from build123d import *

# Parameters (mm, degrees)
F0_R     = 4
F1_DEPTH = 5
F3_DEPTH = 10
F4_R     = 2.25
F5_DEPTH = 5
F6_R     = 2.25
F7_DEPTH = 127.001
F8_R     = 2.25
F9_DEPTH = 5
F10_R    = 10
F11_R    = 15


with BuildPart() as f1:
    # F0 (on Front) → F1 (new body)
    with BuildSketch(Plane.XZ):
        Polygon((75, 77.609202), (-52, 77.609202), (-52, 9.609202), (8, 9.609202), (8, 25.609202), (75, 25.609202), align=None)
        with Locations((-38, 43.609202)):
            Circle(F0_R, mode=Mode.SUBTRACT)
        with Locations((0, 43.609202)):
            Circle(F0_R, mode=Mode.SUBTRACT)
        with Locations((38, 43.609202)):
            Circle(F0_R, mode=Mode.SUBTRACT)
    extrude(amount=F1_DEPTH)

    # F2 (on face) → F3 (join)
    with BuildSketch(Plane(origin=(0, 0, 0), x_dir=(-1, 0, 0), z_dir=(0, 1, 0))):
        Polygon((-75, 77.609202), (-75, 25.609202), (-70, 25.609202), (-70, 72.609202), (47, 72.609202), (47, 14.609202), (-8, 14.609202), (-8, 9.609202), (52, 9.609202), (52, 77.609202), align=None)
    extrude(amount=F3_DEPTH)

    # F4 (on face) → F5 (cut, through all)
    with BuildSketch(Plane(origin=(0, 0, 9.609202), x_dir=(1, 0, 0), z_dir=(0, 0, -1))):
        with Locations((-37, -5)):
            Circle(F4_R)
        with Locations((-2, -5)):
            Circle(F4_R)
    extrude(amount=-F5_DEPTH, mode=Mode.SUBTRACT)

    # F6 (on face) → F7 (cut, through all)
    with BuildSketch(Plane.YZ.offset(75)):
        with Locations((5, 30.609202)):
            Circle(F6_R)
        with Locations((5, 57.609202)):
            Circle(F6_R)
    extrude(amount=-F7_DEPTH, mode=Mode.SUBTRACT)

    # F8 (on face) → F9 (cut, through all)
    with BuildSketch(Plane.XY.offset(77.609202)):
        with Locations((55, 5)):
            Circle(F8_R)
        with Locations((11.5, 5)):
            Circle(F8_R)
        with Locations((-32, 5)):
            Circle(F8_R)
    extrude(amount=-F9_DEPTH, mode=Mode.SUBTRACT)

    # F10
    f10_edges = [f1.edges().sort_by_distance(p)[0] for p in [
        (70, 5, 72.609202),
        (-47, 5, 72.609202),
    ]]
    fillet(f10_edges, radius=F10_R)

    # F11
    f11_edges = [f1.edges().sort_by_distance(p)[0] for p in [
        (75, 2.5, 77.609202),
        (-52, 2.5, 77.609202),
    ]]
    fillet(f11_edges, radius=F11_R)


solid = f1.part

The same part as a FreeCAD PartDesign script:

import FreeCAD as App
import Part
import Sketcher
Q = App.Units.Quantity


def edges_at(feature, points):
    """Names of the edges that pass closest to the given points."""
    edges = feature.Shape.Edges
    near = lambda p: min(range(len(edges)), key=lambda i: edges[i].distToShape(Part.Vertex(*p))[0])
    return sorted({f"Edge{near(p) + 1}" for p in points})

doc = App.newDocument("Part")
body = doc.addObject("PartDesign::Body", "Body")

# Sketch on XZ plane
sketch1 = doc.addObject("Sketcher::SketchObject", "Sketch")
body.addObject(sketch1)
sketch1.AttachmentSupport = (doc.XZ_Plane, [""])
sketch1.MapMode = "FlatFace"
sketch1.addGeometry(Part.LineSegment(App.Vector(75, 77.6, 0), App.Vector(-52, 77.6, 0)), False)
sketch1.addGeometry(Part.LineSegment(App.Vector(-52, 77.6, 0), App.Vector(-52, 9.6, 0)), False)
sketch1.addGeometry(Part.LineSegment(App.Vector(-52, 9.6, 0), App.Vector(8, 9.6, 0)), False)
sketch1.addGeometry(Part.LineSegment(App.Vector(8, 9.6, 0), App.Vector(8, 25.6, 0)), False)
sketch1.addGeometry(Part.LineSegment(App.Vector(8, 25.6, 0), App.Vector(75, 25.6, 0)), False)
sketch1.addGeometry(Part.LineSegment(App.Vector(75, 25.6, 0), App.Vector(75, 77.6, 0)), False)
sketch1.addGeometry(Part.Circle(App.Vector(-38, 43.6, 0), App.Vector(0, 0, 1), 4), False)
sketch1.addGeometry(Part.Circle(App.Vector(0, 43.6, 0), App.Vector(0, 0, 1), 4), False)
sketch1.addGeometry(Part.Circle(App.Vector(38, 43.6, 0), App.Vector(0, 0, 1), 4), False)
sketch1.addConstraint(Sketcher.Constraint("Coincident", 0, 2, 1, 1))
sketch1.addConstraint(Sketcher.Constraint("Coincident", 1, 2, 2, 1))
sketch1.addConstraint(Sketcher.Constraint("Coincident", 2, 2, 3, 1))
sketch1.addConstraint(Sketcher.Constraint("Coincident", 3, 2, 4, 1))
sketch1.addConstraint(Sketcher.Constraint("Coincident", 4, 2, 5, 1))
sketch1.addConstraint(Sketcher.Constraint("Coincident", 5, 2, 0, 1))
sketch1.addConstraint(Sketcher.Constraint("Horizontal", 0))
sketch1.addConstraint(Sketcher.Constraint("Vertical", 1))
sketch1.addConstraint(Sketcher.Constraint("Horizontal", 2))
sketch1.addConstraint(Sketcher.Constraint("Vertical", 3))
sketch1.addConstraint(Sketcher.Constraint("Horizontal", 4))
sketch1.addConstraint(Sketcher.Constraint("Vertical", 5))
sketch1.addConstraint(Sketcher.Constraint("Equal", 6, 7))
sketch1.addConstraint(Sketcher.Constraint("Equal", 7, 8))
sketch1.addConstraint(Sketcher.Constraint("Symmetric", 6, 3, 8, 3, -2))
sketch1.addConstraint(Sketcher.Constraint("PointOnObject", 7, 3, -2))
sketch1.addConstraint(Sketcher.Constraint("Horizontal", 6, 3, 7, 3))
sketch1.addConstraint(Sketcher.Constraint("Diameter", 6, Q("8 mm")))
sketch1.addConstraint(Sketcher.Constraint("DistanceX", 0, 2, 0, 1, Q("127 mm")))
sketch1.addConstraint(Sketcher.Constraint("DistanceX", 2, 1, 2, 2, Q("60 mm")))
sketch1.addConstraint(Sketcher.Constraint("DistanceY", 1, 2, 1, 1, Q("68 mm")))
sketch1.addConstraint(Sketcher.Constraint("DistanceY", 3, 1, 3, 2, Q("16 mm")))
sketch1.addConstraint(Sketcher.Constraint("DistanceX", 6, 3, -1, 1, Q("38 mm")))
sketch1.addConstraint(Sketcher.Constraint("DistanceX", 0, 2, -1, 1, Q("52 mm")))
sketch1.addConstraint(Sketcher.Constraint("DistanceY", 6, 3, 0, 2, Q("34 mm")))
sketch1.addConstraint(Sketcher.Constraint("DistanceY", -1, 1, 0, 2, Q("77.609202 mm")))
pad1 = doc.addObject("PartDesign::Pad", "Pad")
body.addObject(pad1)
pad1.Profile = sketch1
pad1.Length = 5

# Sketch on XZ plane
sketch2 = doc.addObject("Sketcher::SketchObject", "Sketch001")
body.addObject(sketch2)
sketch2.AttachmentSupport = (doc.XZ_Plane, [""])
sketch2.MapMode = "FlatFace"
sketch2.addGeometry(Part.LineSegment(App.Vector(75, 78, 0), App.Vector(75, 26, 0)), False)
sketch2.addGeometry(Part.LineSegment(App.Vector(75, 26, 0), App.Vector(70, 26, 0)), False)
sketch2.addGeometry(Part.LineSegment(App.Vector(70, 26, 0), App.Vector(70, 73, 0)), False)
sketch2.addGeometry(Part.LineSegment(App.Vector(70, 73, 0), App.Vector(-47, 73, 0)), False)
sketch2.addGeometry(Part.LineSegment(App.Vector(-47, 73, 0), App.Vector(-47, 15, 0)), False)
sketch2.addGeometry(Part.LineSegment(App.Vector(-47, 15, 0), App.Vector(8, 15, 0)), False)
sketch2.addGeometry(Part.LineSegment(App.Vector(8, 15, 0), App.Vector(8, 10, 0)), False)
sketch2.addGeometry(Part.LineSegment(App.Vector(8, 10, 0), App.Vector(-52, 10, 0)), False)
sketch2.addGeometry(Part.LineSegment(App.Vector(-52, 10, 0), App.Vector(-52, 78, 0)), False)
sketch2.addGeometry(Part.LineSegment(App.Vector(-52, 78, 0), App.Vector(75, 78, 0)), False)
sketch2.addConstraint(Sketcher.Constraint("Coincident", 0, 2, 1, 1))
sketch2.addConstraint(Sketcher.Constraint("Coincident", 1, 2, 2, 1))
sketch2.addConstraint(Sketcher.Constraint("Coincident", 2, 2, 3, 1))
sketch2.addConstraint(Sketcher.Constraint("Coincident", 3, 2, 4, 1))
sketch2.addConstraint(Sketcher.Constraint("Coincident", 4, 2, 5, 1))
sketch2.addConstraint(Sketcher.Constraint("Coincident", 5, 2, 6, 1))
sketch2.addConstraint(Sketcher.Constraint("Coincident", 6, 2, 7, 1))
sketch2.addConstraint(Sketcher.Constraint("Coincident", 7, 2, 8, 1))
sketch2.addConstraint(Sketcher.Constraint("Coincident", 8, 2, 9, 1))
sketch2.addConstraint(Sketcher.Constraint("Coincident", 9, 2, 0, 1))
sketch2.addConstraint(Sketcher.Constraint("Vertical", 0))
sketch2.addConstraint(Sketcher.Constraint("Horizontal", 1))
sketch2.addConstraint(Sketcher.Constraint("Vertical", 2))
sketch2.addConstraint(Sketcher.Constraint("Horizontal", 3))
sketch2.addConstraint(Sketcher.Constraint("Vertical", 4))
sketch2.addConstraint(Sketcher.Constraint("Horizontal", 5))
sketch2.addConstraint(Sketcher.Constraint("Vertical", 6))
sketch2.addConstraint(Sketcher.Constraint("Horizontal", 7))
sketch2.addConstraint(Sketcher.Constraint("Vertical", 8))
sketch2.addConstraint(Sketcher.Constraint("Horizontal", 9))
sketch2.addConstraint(Sketcher.Constraint("Equal", 1, 6))
sketch2.addConstraint(Sketcher.Constraint("DistanceX", 1, 2, 1, 1, Q("5 mm")))
sketch2.addConstraint(Sketcher.Constraint("DistanceX", 3, 2, 3, 1, Q("117 mm")))
sketch2.addConstraint(Sketcher.Constraint("DistanceX", 5, 1, 5, 2, Q("55 mm")))
sketch2.addConstraint(Sketcher.Constraint("DistanceX", 7, 2, 7, 1, Q("60 mm")))
sketch2.addConstraint(Sketcher.Constraint("DistanceY", 0, 2, 0, 1, Q("52 mm")))
sketch2.addConstraint(Sketcher.Constraint("DistanceY", 2, 1, 2, 2, Q("47 mm")))
sketch2.addConstraint(Sketcher.Constraint("DistanceY", 4, 2, 4, 1, Q("58 mm")))
sketch2.addConstraint(Sketcher.Constraint("DistanceX", -1, 1, 0, 2, Q("75 mm")))
sketch2.addConstraint(Sketcher.Constraint("DistanceY", -1, 1, 0, 2, Q("25.609202 mm")))
pad2 = doc.addObject("PartDesign::Pad", "Pad001")
body.addObject(pad2)
pad2.Profile = sketch2
pad2.Length = 10
pad2.Reversed = True

# Sketch on XY plane
sketch3 = doc.addObject("Sketcher::SketchObject", "Sketch002")
body.addObject(sketch3)
sketch3.AttachmentSupport = (doc.XY_Plane, [""])
sketch3.MapMode = "FlatFace"
sketch3.AttachmentOffset = App.Placement(App.Vector(0, 0, 9.609202), App.Rotation())
sketch3.addGeometry(Part.Circle(App.Vector(-37, 5, 0), App.Vector(0, 0, 1), 2.2), False)
sketch3.addGeometry(Part.Circle(App.Vector(-2, 5, 0), App.Vector(0, 0, 1), 2.2), False)
sketch3.addConstraint(Sketcher.Constraint("Equal", 0, 1))
sketch3.addConstraint(Sketcher.Constraint("Horizontal", 0, 3, 1, 3))
sketch3.addConstraint(Sketcher.Constraint("Diameter", 0, Q("4.5 mm")))
sketch3.addConstraint(Sketcher.Constraint("DistanceX", 0, 3, -1, 1, Q("37 mm")))
sketch3.addConstraint(Sketcher.Constraint("DistanceY", -1, 1, 0, 3, Q("5 mm")))
sketch3.addConstraint(Sketcher.Constraint("DistanceX", 1, 3, -1, 1, Q("2 mm")))
pocket1 = doc.addObject("PartDesign::Pocket", "Pocket")
body.addObject(pocket1)
pocket1.Profile = sketch3
pocket1.Length = 5
pocket1.Reversed = True

# Sketch on YZ plane
sketch4 = doc.addObject("Sketcher::SketchObject", "Sketch003")
body.addObject(sketch4)
sketch4.AttachmentSupport = (doc.YZ_Plane, [""])
sketch4.MapMode = "FlatFace"
sketch4.AttachmentOffset = App.Placement(App.Vector(0, 0, 75), App.Rotation())
sketch4.addGeometry(Part.Circle(App.Vector(5, 30.6, 0), App.Vector(0, 0, 1), 2.2), False)
sketch4.addGeometry(Part.Circle(App.Vector(5, 57.6, 0), App.Vector(0, 0, 1), 2.2), False)
sketch4.addConstraint(Sketcher.Constraint("Equal", 0, 1))
sketch4.addConstraint(Sketcher.Constraint("Vertical", 0, 3, 1, 3))
sketch4.addConstraint(Sketcher.Constraint("Diameter", 0, Q("4.5 mm")))
sketch4.addConstraint(Sketcher.Constraint("DistanceX", -1, 1, 0, 3, Q("5 mm")))
sketch4.addConstraint(Sketcher.Constraint("DistanceY", 0, 3, 1, 3, Q("27 mm")))
sketch4.addConstraint(Sketcher.Constraint("DistanceY", -1, 1, 0, 3, Q("30.609202 mm")))
pocket2 = doc.addObject("PartDesign::Pocket", "Pocket001")
body.addObject(pocket2)
pocket2.Profile = sketch4
pocket2.Type = "ThroughAll"

# Sketch on XY plane
sketch5 = doc.addObject("Sketcher::SketchObject", "Sketch004")
body.addObject(sketch5)
sketch5.AttachmentSupport = (doc.XY_Plane, [""])
sketch5.MapMode = "FlatFace"
sketch5.AttachmentOffset = App.Placement(App.Vector(0, 0, 77.609202), App.Rotation())
sketch5.addGeometry(Part.Circle(App.Vector(55, 5, 0), App.Vector(0, 0, 1), 2.2), False)
sketch5.addGeometry(Part.Circle(App.Vector(11.5, 5, 0), App.Vector(0, 0, 1), 2.2), False)
sketch5.addGeometry(Part.Circle(App.Vector(-32, 5, 0), App.Vector(0, 0, 1), 2.2), False)
sketch5.addConstraint(Sketcher.Constraint("Equal", 0, 1))
sketch5.addConstraint(Sketcher.Constraint("Equal", 1, 2))
sketch5.addConstraint(Sketcher.Constraint("Horizontal", 0, 3, 1, 3))
sketch5.addConstraint(Sketcher.Constraint("Horizontal", 1, 3, 2, 3))
sketch5.addConstraint(Sketcher.Constraint("Diameter", 0, Q("4.5 mm")))
sketch5.addConstraint(Sketcher.Constraint("DistanceX", -1, 1, 0, 3, Q("55 mm")))
sketch5.addConstraint(Sketcher.Constraint("DistanceY", -1, 1, 0, 3, Q("5 mm")))
sketch5.addConstraint(Sketcher.Constraint("DistanceX", 2, 3, -1, 1, Q("32 mm")))
sketch5.addConstraint(Sketcher.Constraint("DistanceX", -1, 1, 1, 3, Q("11.5 mm")))
pocket3 = doc.addObject("PartDesign::Pocket", "Pocket002")
body.addObject(pocket3)
pocket3.Profile = sketch5
pocket3.Length = 5
doc.recompute()

fillet = doc.addObject("PartDesign::Fillet", "Fillet")
body.addObject(fillet)
fillet.Base = (pocket3, edges_at(pocket3, [(70, 5, 72.609), (-47, 5, 72.609)]))
fillet.Radius = 10
doc.recompute()

fillet2 = doc.addObject("PartDesign::Fillet", "Fillet001")
body.addObject(fillet2)
fillet2.Base = (fillet, edges_at(fillet, [(75, 2.5, 77.609), (-52, 2.5, 77.609)]))
fillet2.Radius = 15

doc.recompute()
